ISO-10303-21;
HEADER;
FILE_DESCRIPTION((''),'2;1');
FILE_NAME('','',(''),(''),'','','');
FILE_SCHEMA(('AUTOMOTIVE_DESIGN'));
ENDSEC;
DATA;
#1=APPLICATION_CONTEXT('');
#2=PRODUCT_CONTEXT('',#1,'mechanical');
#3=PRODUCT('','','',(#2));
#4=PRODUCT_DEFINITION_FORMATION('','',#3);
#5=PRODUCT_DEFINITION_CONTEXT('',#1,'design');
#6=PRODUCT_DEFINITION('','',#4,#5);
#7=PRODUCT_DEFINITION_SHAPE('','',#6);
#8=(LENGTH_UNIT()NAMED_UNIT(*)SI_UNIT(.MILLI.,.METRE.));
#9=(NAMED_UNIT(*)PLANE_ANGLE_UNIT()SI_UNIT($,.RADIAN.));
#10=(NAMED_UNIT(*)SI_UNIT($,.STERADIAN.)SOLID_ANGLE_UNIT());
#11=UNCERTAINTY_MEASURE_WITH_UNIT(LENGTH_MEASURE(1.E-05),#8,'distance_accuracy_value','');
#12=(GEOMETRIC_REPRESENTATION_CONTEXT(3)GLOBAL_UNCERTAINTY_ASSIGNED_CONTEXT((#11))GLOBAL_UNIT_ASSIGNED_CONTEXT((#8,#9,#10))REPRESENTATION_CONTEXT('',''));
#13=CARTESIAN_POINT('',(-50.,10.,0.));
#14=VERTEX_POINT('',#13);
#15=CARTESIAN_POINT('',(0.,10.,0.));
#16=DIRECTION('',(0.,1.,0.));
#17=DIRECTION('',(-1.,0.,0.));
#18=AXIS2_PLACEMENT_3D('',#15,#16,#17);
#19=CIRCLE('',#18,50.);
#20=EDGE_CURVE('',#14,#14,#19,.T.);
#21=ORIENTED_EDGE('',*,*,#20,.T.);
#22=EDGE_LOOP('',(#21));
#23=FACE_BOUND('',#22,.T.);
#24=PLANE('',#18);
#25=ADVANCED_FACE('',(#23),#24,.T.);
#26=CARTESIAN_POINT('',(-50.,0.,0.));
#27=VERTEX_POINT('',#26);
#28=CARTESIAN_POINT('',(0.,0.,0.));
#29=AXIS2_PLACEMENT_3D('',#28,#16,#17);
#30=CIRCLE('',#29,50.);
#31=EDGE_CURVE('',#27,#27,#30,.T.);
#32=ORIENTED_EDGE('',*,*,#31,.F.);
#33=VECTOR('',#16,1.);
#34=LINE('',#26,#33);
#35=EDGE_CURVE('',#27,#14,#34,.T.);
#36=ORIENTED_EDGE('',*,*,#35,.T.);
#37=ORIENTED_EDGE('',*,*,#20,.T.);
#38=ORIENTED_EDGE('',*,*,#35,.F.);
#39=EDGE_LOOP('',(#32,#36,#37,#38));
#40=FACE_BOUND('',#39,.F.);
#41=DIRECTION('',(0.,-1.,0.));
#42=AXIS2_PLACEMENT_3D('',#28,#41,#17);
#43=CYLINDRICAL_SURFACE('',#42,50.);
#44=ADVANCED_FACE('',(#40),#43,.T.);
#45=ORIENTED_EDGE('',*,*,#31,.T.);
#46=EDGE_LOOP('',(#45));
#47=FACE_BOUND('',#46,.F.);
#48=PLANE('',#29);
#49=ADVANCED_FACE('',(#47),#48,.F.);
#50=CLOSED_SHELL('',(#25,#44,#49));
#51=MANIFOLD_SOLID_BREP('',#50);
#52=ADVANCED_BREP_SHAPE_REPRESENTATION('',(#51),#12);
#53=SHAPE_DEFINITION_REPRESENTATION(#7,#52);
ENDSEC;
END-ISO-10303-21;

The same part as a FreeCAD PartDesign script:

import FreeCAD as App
import Part
import Sketcher
Q = App.Units.Quantity

doc = App.newDocument("Part")
body = doc.addObject("PartDesign::Body", "Body")

# Sketch on XZ plane
sketch1 = doc.addObject("Sketcher::SketchObject", "Sketch")
body.addObject(sketch1)
sketch1.AttachmentSupport = (doc.XZ_Plane, [""])
sketch1.MapMode = "FlatFace"
sketch1.addGeometry(Part.Circle(App.Vector(0, 0, 0), App.Vector(0, 0, 1), 50), False)
sketch1.addConstraint(Sketcher.Constraint("Coincident", 0, 3, -1, 1))
sketch1.addConstraint(Sketcher.Constraint("Diameter", 0, Q("3.937 in")))
pad1 = doc.addObject("PartDesign::Pad", "Pad")
body.addObject(pad1)
pad1.Profile = sketch1
pad1.Length = Q("0.3937008 in")
pad1.Reversed = True

doc.recompute()
